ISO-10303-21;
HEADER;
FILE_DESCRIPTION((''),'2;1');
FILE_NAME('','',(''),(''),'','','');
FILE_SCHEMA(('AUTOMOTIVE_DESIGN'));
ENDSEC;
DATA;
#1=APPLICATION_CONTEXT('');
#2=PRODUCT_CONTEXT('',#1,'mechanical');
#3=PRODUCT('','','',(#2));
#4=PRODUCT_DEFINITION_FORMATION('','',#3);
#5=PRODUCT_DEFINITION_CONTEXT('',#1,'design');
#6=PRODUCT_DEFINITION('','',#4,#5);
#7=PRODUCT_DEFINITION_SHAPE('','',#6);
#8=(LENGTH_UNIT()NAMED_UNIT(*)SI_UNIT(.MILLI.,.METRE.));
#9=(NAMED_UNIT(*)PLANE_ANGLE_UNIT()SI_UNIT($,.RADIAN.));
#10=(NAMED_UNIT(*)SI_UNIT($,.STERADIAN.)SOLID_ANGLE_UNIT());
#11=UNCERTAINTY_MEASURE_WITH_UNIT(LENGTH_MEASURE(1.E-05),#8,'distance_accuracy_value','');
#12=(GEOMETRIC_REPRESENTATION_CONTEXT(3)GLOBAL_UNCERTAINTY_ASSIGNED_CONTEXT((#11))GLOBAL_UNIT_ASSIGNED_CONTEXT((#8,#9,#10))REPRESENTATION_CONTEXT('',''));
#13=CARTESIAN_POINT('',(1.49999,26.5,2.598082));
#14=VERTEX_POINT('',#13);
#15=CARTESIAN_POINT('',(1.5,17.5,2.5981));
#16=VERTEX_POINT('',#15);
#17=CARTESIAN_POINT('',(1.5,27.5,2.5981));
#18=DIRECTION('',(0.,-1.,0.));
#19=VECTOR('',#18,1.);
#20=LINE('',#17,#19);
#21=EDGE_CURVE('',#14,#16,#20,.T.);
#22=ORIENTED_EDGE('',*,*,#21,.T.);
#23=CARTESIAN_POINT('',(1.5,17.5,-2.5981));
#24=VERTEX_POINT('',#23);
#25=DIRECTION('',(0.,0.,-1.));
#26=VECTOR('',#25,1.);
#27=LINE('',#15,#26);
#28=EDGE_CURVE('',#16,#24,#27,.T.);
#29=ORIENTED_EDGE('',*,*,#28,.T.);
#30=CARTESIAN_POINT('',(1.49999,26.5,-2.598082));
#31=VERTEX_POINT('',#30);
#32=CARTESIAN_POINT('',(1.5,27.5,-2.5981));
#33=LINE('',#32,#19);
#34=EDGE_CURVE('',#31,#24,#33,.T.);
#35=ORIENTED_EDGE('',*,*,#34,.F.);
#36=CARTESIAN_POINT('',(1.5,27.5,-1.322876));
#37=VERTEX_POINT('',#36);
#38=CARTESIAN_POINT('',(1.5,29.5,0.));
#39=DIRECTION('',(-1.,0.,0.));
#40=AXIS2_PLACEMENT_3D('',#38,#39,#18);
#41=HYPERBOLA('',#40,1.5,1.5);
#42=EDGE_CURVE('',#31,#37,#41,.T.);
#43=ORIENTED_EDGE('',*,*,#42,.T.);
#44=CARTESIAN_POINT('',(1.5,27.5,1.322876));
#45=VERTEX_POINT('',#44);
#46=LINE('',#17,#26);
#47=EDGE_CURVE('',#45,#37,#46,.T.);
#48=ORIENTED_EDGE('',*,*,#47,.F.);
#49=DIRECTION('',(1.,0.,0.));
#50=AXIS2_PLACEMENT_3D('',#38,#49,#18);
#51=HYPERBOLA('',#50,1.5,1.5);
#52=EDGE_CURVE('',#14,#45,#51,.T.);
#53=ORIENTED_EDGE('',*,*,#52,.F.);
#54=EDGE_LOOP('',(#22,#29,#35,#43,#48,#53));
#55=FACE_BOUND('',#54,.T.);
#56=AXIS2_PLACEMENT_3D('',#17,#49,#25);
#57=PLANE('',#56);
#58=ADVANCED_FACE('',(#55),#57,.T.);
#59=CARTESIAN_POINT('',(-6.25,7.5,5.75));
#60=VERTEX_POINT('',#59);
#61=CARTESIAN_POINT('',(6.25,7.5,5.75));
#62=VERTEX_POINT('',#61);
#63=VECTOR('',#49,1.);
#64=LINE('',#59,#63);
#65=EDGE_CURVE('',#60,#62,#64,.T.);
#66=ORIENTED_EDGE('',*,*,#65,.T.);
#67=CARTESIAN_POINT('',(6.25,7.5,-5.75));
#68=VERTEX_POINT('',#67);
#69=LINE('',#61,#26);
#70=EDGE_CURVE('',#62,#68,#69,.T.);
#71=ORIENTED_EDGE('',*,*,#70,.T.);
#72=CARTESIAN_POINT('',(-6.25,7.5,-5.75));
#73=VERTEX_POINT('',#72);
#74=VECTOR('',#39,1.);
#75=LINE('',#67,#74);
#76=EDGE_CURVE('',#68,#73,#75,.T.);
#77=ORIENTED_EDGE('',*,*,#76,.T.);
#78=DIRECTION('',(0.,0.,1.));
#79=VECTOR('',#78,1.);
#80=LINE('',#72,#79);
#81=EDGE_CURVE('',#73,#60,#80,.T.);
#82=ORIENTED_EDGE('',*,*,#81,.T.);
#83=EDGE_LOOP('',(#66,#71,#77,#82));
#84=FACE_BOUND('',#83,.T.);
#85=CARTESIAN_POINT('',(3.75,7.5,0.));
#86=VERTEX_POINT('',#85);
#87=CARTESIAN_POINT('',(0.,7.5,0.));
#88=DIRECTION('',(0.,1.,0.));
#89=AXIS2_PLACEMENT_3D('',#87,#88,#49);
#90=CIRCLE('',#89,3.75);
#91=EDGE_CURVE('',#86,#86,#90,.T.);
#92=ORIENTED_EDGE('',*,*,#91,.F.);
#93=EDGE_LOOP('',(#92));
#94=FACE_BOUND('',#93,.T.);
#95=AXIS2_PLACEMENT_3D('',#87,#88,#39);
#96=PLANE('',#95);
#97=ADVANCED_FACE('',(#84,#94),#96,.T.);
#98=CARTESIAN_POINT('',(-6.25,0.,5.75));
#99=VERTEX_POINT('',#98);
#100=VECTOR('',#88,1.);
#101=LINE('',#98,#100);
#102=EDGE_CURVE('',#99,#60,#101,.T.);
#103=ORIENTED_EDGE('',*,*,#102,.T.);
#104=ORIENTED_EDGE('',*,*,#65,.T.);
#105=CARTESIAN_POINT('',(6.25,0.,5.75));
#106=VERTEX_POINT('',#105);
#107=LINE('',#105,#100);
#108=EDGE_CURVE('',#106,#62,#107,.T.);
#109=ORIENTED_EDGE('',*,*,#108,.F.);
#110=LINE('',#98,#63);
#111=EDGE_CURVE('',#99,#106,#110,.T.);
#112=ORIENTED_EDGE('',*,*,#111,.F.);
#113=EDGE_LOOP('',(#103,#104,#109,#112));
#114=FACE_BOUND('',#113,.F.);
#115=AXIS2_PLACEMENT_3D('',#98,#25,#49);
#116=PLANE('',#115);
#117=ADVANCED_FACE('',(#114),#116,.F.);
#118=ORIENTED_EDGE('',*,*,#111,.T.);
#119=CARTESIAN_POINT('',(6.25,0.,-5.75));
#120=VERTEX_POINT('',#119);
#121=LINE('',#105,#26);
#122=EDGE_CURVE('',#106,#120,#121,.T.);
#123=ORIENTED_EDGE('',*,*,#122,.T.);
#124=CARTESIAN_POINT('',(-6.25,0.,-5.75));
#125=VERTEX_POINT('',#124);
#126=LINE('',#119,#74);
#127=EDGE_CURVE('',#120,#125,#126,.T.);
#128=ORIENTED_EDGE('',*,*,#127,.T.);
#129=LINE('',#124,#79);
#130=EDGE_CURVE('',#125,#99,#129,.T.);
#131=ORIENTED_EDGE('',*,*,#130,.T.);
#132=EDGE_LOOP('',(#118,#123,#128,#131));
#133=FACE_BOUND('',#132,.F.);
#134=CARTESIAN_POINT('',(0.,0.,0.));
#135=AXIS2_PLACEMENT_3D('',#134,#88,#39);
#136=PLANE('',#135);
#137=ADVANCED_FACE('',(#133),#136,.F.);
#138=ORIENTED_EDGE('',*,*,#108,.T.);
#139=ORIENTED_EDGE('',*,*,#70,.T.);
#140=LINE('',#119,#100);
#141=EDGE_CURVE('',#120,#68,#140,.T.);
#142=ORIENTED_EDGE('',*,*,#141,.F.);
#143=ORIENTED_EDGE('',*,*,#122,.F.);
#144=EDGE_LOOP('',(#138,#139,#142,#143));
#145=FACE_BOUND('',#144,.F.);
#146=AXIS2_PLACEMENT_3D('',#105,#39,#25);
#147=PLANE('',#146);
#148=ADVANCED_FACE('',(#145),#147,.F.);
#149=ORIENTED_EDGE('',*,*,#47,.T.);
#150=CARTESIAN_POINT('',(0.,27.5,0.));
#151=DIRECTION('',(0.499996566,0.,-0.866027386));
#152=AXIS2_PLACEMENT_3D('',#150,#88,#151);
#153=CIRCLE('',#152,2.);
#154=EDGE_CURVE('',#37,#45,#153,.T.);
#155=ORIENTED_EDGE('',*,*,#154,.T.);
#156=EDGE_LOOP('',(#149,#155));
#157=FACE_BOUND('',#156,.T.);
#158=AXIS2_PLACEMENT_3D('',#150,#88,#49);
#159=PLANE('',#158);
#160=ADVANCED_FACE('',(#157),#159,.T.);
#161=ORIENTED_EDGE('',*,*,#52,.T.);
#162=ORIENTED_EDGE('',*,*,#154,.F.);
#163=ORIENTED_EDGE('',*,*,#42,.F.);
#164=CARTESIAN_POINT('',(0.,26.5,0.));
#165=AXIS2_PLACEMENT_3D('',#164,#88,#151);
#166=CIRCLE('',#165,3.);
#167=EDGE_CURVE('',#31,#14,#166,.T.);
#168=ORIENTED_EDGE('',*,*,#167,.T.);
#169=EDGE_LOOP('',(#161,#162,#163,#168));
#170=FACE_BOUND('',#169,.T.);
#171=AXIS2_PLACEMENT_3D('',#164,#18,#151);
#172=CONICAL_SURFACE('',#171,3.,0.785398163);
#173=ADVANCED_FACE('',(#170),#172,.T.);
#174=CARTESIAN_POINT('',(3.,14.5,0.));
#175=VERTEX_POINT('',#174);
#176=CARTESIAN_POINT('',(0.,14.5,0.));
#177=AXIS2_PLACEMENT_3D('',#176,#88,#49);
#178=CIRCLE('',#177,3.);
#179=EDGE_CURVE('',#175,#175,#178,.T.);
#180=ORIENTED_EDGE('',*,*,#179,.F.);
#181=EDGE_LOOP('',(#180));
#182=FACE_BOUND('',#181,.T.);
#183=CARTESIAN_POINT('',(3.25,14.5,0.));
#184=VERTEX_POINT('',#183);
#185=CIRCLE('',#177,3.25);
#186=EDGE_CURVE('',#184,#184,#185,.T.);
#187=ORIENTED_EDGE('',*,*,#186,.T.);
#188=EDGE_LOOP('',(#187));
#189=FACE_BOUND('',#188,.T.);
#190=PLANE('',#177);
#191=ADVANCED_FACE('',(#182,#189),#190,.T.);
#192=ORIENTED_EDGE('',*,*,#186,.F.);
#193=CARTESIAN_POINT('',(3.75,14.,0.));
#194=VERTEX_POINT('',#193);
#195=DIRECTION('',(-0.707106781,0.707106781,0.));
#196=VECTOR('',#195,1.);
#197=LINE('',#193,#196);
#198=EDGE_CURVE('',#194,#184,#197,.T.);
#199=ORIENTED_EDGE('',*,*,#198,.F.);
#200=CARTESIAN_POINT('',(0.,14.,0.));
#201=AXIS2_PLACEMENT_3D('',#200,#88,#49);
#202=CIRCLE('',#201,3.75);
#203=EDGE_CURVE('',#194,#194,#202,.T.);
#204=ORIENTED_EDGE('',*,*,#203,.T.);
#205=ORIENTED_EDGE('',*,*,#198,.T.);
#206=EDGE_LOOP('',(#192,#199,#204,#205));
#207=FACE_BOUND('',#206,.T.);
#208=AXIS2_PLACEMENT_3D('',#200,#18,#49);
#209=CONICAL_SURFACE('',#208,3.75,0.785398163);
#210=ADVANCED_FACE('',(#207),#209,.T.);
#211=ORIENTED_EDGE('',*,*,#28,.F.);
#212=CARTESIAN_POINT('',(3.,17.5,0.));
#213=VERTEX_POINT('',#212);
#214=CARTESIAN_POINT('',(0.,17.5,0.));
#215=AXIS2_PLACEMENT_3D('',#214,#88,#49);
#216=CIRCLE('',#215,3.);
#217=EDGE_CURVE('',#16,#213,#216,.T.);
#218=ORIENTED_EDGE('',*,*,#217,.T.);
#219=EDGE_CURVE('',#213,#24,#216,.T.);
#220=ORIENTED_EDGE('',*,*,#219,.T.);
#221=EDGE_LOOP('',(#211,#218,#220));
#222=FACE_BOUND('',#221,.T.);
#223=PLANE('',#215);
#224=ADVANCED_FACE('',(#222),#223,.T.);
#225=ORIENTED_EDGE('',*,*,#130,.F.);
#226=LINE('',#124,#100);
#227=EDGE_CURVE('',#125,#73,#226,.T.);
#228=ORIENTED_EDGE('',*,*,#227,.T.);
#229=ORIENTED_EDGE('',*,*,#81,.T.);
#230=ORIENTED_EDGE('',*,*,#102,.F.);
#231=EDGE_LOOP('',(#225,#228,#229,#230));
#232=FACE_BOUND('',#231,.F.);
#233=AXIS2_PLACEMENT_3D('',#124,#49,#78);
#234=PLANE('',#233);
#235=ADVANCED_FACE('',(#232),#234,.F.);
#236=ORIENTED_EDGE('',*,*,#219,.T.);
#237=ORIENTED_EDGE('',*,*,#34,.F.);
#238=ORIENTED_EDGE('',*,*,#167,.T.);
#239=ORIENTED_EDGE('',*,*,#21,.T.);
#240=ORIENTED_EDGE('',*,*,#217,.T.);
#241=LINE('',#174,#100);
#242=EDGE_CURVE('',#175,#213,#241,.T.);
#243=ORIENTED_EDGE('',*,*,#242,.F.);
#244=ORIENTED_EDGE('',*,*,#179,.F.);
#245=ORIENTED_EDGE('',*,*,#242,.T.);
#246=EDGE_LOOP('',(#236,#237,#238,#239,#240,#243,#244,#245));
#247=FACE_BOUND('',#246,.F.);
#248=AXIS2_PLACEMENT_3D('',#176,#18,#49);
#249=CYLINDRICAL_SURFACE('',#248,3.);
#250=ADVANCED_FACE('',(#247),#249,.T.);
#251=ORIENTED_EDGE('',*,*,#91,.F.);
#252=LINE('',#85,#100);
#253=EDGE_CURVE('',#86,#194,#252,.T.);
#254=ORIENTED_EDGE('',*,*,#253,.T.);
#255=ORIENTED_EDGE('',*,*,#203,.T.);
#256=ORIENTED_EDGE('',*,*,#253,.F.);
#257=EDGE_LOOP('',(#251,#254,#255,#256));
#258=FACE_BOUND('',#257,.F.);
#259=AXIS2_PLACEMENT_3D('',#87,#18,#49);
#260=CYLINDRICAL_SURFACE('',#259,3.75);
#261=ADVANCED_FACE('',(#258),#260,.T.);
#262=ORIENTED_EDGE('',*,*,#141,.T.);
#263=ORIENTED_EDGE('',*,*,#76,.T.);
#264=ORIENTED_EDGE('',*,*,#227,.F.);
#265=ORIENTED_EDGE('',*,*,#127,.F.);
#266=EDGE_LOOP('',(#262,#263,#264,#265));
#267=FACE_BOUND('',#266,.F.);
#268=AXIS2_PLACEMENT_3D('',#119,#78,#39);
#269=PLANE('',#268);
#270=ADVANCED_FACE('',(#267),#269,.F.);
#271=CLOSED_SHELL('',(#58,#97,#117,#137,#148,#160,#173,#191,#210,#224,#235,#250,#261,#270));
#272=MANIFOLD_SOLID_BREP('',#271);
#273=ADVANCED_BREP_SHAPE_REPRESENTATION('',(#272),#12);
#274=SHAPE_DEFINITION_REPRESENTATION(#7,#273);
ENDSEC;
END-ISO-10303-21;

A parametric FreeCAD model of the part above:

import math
import FreeCAD as App
import Part
import Sketcher

V = App.Vector
Q = App.Units.Quantity


def edges_at(feature, points):
    """Names of the edges that pass closest to the given points."""
    edges = feature.Shape.Edges
    near = lambda p: min(range(len(edges)), key=lambda i: edges[i].distToShape(Part.Vertex(*p))[0])
    return sorted({f"Edge{near(p) + 1}" for p in points})

doc = App.newDocument("Part")
params = doc.addObject("Spreadsheet::Sheet", "Params")
for row, (alias, value) in enumerate([
    ("sketch1_width", "12.5 mm"),
    ("sketch1_height", "11.5 mm"),
    ("pad1_length", "7.5 mm"),
    ("sketch2_diameter", "7.5 mm"),
    ("pad2_length", "7 mm"),
    ("sketch3_diameter", "6 mm"),
    ("pad3_length", "13 mm"),
    ("sketch4_radius", "3 mm"),
    ("pocket1_length", "10 mm"),
    ("chamfer_size", "0.5 mm"),
    ("chamfer2_size", "1 mm"),
], start=1):
    params.set(f"A{row}", alias)
    params.set(f"B{row}", "=" + value)
    params.setAlias(f"B{row}", alias)

body = doc.addObject("PartDesign::Body", "Body")

# Sketch on XZ plane
sketch1 = body.newObject("Sketcher::SketchObject", "Sketch")
sketch1.AttachmentSupport = (doc.getObject("XZ_Plane"), [""])
sketch1.MapMode = "FlatFace"
sketch1.addGeometry(Part.LineSegment(V(-6, -6, 0), V(-6, 6, 0)), False)
sketch1.addGeometry(Part.LineSegment(V(-6, 6, 0), V(6, 6, 0)), False)
sketch1.addGeometry(Part.LineSegment(V(6, 6, 0), V(6, -6, 0)), False)
sketch1.addGeometry(Part.LineSegment(V(6, -6, 0), V(-6, -6, 0)), False)
sketch1.addConstraint(Sketcher.Constraint("Coincident", 0, 2, 1, 1))
sketch1.addConstraint(Sketcher.Constraint("Coincident", 1, 2, 2, 1))
sketch1.addConstraint(Sketcher.Constraint("Coincident", 2, 2, 3, 1))
sketch1.addConstraint(Sketcher.Constraint("Coincident", 3, 2, 0, 1))
sketch1.addConstraint(Sketcher.Constraint("Vertical", 0))
sketch1.addConstraint(Sketcher.Constraint("Horizontal", 1))
sketch1.addConstraint(Sketcher.Constraint("Vertical", 2))
sketch1.addConstraint(Sketcher.Constraint("Horizontal", 3))
sketch1.addConstraint(Sketcher.Constraint("Symmetric", 0, 2, 2, 2, -1, 1))
sketch1.addConstraint(Sketcher.Constraint("DistanceX", 1, 1, 1, 2, Q("12.5 mm")))
sketch1.addConstraint(Sketcher.Constraint("DistanceY", 0, 1, 0, 2, Q("11.5 mm")))
sketch1.setExpression("Constraints[9]", "Params.sketch1_width")
sketch1.setExpression("Constraints[10]", "Params.sketch1_height")
pad1 = body.newObject("PartDesign::Pad", "Pad")
pad1.Profile = sketch1
pad1.setExpression("Length", "Params.pad1_length")
pad1.Reversed = True

# Sketch on XZ plane
sketch2 = body.newObject("Sketcher::SketchObject", "Sketch001")
sketch2.AttachmentSupport = (doc.getObject("XZ_Plane"), [""])
sketch2.MapMode = "FlatFace"
sketch2.AttachmentOffset = App.Placement(V(0, 0, -7.5), App.Rotation())
sketch2.addGeometry(Part.Circle(V(0, 0, 0), V(0, 0, 1), 3.8), False)
sketch2.addConstraint(Sketcher.Constraint("Coincident", 0, 3, -1, 1))
sketch2.addConstraint(Sketcher.Constraint("Diameter", 0, Q("7.5 mm")))
sketch2.setExpression("Constraints[1]", "Params.sketch2_diameter")
pad2 = body.newObject("PartDesign::Pad", "Pad001")
pad2.Profile = sketch2
pad2.setExpression("Length", "Params.pad2_length")
pad2.Reversed = True

# Sketch on XZ plane
sketch3 = body.newObject("Sketcher::SketchObject", "Sketch002")
sketch3.AttachmentSupport = (doc.getObject("XZ_Plane"), [""])
sketch3.MapMode = "FlatFace"
sketch3.AttachmentOffset = App.Placement(V(0, 0, -14.5), App.Rotation())
sketch3.addGeometry(Part.Circle(V(0, 0, 0), V(0, 0, 1), 3), False)
sketch3.addConstraint(Sketcher.Constraint("Coincident", 0, 3, -1, 1))
sketch3.addConstraint(Sketcher.Constraint("Diameter", 0, Q("6 mm")))
sketch3.setExpression("Constraints[1]", "Params.sketch3_diameter")
pad3 = body.newObject("PartDesign::Pad", "Pad002")
pad3.Profile = sketch3
pad3.setExpression("Length", "Params.pad3_length")
pad3.Reversed = True

# Sketch on XZ plane
sketch4 = body.newObject("Sketcher::SketchObject", "Sketch003")
sketch4.AttachmentSupport = (doc.getObject("XZ_Plane"), [""])
sketch4.MapMode = "FlatFace"
sketch4.AttachmentOffset = App.Placement(V(0, 0, -27.5), App.Rotation())
sketch4.addGeometry(Part.ArcOfCircle(Part.Circle(V(0, 0, 0), V(0, 0, 1), 3), math.radians(-60), math.radians(60)), False)
sketch4.addGeometry(Part.LineSegment(V(1.5, 2.6, 0), V(1.5, -2.6, 0)), False)
sketch4.addConstraint(Sketcher.Constraint("Coincident", 0, 1, 1, 2))
sketch4.addConstraint(Sketcher.Constraint("Coincident", 1, 1, 0, 2))
sketch4.addConstraint(Sketcher.Constraint("Vertical", 1))
sketch4.addConstraint(Sketcher.Constraint("Coincident", 0, 3, -1, 1))
sketch4.addConstraint(Sketcher.Constraint("Radius", 0, Q("3 mm")))
sketch4.addConstraint(Sketcher.Constraint("DistanceX", -1, 1, 0, 1, Q("1.5 mm")))
sketch4.setExpression("Constraints[4]", "Params.sketch4_radius")
pocket1 = body.newObject("PartDesign::Pocket", "Pocket")
pocket1.Profile = sketch4
pocket1.setExpression("Length", "Params.pocket1_length")
pocket1.Reversed = True
doc.recompute()

chamfer = body.newObject("PartDesign::Chamfer", "Chamfer")
chamfer.Base = (pocket1, edges_at(pocket1, [(-3.75, 14.5, 0)]))
chamfer.setExpression("Size", "Params.chamfer_size")
doc.recompute()

chamfer2 = body.newObject("PartDesign::Chamfer", "Chamfer001")
chamfer2.Base = (chamfer, edges_at(chamfer, [(-3, 27.5, 0)]))
chamfer2.setExpression("Size", "Params.chamfer2_size")

doc.recompute()
